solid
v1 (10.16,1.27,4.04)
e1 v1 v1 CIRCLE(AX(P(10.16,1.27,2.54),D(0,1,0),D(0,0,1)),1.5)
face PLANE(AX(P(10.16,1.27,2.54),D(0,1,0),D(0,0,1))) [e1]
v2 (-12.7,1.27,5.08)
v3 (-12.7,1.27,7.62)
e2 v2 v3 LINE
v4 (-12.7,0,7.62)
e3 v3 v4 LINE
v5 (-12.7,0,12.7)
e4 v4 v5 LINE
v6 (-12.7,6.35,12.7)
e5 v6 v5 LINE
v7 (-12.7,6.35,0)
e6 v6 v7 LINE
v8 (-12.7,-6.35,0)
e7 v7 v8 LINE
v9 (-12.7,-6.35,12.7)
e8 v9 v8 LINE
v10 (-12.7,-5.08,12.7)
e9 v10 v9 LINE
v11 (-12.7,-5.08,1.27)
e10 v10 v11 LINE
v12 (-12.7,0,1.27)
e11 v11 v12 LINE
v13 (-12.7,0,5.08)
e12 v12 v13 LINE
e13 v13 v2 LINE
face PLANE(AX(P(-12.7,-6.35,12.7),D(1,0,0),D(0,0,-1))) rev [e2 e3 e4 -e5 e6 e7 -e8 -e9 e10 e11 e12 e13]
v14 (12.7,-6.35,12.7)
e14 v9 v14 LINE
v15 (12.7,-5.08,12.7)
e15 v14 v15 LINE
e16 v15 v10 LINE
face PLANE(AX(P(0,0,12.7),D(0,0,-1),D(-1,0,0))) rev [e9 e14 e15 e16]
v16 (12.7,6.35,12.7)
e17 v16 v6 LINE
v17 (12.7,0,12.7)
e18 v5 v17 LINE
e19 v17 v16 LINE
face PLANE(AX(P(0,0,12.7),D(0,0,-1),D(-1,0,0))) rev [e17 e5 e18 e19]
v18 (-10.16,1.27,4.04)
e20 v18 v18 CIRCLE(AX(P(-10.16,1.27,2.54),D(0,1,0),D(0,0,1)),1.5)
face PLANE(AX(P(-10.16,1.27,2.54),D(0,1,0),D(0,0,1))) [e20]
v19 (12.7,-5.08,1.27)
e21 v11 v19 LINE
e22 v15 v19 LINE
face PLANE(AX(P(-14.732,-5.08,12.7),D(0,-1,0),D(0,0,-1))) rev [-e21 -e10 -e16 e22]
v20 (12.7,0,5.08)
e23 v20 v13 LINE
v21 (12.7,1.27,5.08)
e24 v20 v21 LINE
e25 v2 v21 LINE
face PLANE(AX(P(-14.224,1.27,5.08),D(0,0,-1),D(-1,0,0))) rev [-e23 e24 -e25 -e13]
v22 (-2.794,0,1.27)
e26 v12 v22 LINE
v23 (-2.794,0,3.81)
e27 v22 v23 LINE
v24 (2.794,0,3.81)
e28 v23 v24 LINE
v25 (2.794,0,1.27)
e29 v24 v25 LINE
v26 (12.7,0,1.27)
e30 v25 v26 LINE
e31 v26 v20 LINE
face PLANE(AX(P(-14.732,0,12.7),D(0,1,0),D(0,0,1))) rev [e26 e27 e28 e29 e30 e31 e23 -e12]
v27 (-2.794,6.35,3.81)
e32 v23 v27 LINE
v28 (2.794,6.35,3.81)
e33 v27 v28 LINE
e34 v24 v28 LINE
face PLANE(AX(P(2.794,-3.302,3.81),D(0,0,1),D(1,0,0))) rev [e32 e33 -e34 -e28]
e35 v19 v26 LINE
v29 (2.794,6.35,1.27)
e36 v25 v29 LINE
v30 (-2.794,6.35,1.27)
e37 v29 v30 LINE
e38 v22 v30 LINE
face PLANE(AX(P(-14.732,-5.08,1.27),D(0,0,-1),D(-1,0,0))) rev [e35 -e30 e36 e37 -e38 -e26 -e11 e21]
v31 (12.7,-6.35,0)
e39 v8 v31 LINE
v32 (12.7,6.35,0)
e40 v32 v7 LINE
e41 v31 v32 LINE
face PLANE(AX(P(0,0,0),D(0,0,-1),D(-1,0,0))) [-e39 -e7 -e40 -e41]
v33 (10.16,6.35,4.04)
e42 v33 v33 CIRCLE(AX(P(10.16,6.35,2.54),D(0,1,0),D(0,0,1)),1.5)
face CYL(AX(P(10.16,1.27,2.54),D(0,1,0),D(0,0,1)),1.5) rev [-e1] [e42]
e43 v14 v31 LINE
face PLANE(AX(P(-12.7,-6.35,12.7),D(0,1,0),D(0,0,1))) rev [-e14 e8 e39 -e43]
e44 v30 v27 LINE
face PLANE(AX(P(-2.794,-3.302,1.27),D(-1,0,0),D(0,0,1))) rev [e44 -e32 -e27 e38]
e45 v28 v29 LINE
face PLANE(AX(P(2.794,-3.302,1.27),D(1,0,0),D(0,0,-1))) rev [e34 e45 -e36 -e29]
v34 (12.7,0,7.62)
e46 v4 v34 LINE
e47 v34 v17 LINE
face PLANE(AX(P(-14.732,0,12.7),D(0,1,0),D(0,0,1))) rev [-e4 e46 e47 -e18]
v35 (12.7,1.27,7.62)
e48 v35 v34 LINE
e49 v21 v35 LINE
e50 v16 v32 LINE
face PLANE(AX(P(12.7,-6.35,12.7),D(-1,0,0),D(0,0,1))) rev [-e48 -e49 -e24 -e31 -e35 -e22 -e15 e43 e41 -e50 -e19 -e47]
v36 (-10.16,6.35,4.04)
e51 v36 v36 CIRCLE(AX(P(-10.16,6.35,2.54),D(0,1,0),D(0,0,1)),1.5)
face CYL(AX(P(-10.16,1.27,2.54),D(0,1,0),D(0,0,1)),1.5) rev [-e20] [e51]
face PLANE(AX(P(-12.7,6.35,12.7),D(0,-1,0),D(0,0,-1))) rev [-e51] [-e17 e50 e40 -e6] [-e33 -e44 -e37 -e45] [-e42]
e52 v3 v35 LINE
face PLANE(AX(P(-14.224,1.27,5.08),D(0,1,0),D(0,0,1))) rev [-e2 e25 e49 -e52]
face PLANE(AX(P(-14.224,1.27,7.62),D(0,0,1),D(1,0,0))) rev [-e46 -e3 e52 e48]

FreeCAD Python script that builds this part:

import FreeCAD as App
import Part
import Sketcher
from FreeCAD import Vector
Q = App.Units.Quantity


def add_polygon(sketch, points):
    """Adds a closed chain of lines whose ends are joined by coincident constraints."""
    first, n = sketch.GeometryCount, len(points)
    for a, b in zip(points, points[1:] + points[:1]):
        sketch.addGeometry(Part.LineSegment(App.Vector(*a, 0), App.Vector(*b, 0)), False)
    for i in range(n):
        sketch.addConstraint(Sketcher.Constraint("Coincident", first + i, 2, first + (i + 1) % n, 1))

doc = App.newDocument("Part")
body = doc.addObject("PartDesign::Body", "Body")

# Sketch on XY plane
sketch1 = body.newObject("Sketcher::SketchObject", "Sketch")
sketch1.AttachmentSupport = (doc.getObject("XY_Plane"), [""])
sketch1.MapMode = "FlatFace"
add_polygon(sketch1, [(-12.7, 6.35), (-12.7, -6.35), (12.7, -6.35), (12.7, 6.35)])  # lines 0-3
sketch1.addConstraint(Sketcher.Constraint("Vertical", 0))
sketch1.addConstraint(Sketcher.Constraint("Horizontal", 1))
sketch1.addConstraint(Sketcher.Constraint("Vertical", 2))
sketch1.addConstraint(Sketcher.Constraint("Horizontal", 3))
sketch1.addConstraint(Sketcher.Constraint("Symmetric", 0, 2, 2, 2, -1, 1))
sketch1.addConstraint(Sketcher.Constraint("DistanceX", 1, 1, 1, 2, Q("1 in")))
sketch1.addConstraint(Sketcher.Constraint("DistanceY", 0, 2, 0, 1, Q("0.5 in")))
pad1 = body.newObject("PartDesign::Pad", "Pad")
pad1.Profile = sketch1
pad1.Length = Q("0.5 in")

# Sketch on XZ plane
sketch2 = body.newObject("Sketcher::SketchObject", "Sketch001")
sketch2.AttachmentSupport = (doc.getObject("XZ_Plane"), [""])
sketch2.MapMode = "FlatFace"
sketch2.AttachmentOffset = App.Placement(Vector(0, 0, -0.25 * 25.4), App.Rotation())
sketch2.addGeometry(Part.Circle(Vector(-10.16, 2.54, 0), Vector(0, 0, 1), 1.5), False)
sketch2.addGeometry(Part.Circle(Vector(10.16, 2.54, 0), Vector(0, 0, 1), 1.5), False)
sketch2.addConstraint(Sketcher.Constraint("Equal", 0, 1))
sketch2.addConstraint(Sketcher.Constraint("Symmetric", 0, 3, 1, 3, -2))
sketch2.addConstraint(Sketcher.Constraint("DistanceX", 0, 3, -1, 1, Q("0.4 in")))
sketch2.addConstraint(Sketcher.Constraint("DistanceY", -1, 1, 0, 3, Q("0.1 in")))
sketch2.addConstraint(Sketcher.Constraint("Diameter", 0, 3.0))
pocket1 = body.newObject("PartDesign::Pocket", "Pocket")
pocket1.Profile = sketch2
pocket1.Length = Q("0.2 in")
pocket1.Reversed = True

# Sketch on YZ plane
sketch3 = body.newObject("Sketcher::SketchObject", "Sketch002")
sketch3.AttachmentSupport = (doc.getObject("YZ_Plane"), [""])
sketch3.MapMode = "FlatFace"
sketch3.AttachmentOffset = App.Placement(Vector(0, 0, 0.5 * 25.4), App.Rotation())
add_polygon(sketch3, [(0, 12.7), (-5.08, 12.7), (-5.08, 1.27), (0, 1.27)])  # lines 0-3
sketch3.addConstraint(Sketcher.Constraint("Horizontal", 0))
sketch3.addConstraint(Sketcher.Constraint("Vertical", 1))
sketch3.addConstraint(Sketcher.Constraint("Horizontal", 2))
sketch3.addConstraint(Sketcher.Constraint("Vertical", 3))
sketch3.addConstraint(Sketcher.Constraint("PointOnObject", 2, 2, -2))
sketch3.addConstraint(Sketcher.Constraint("DistanceX", 0, 2, 0, 1, Q("0.2 in")))
sketch3.addConstraint(Sketcher.Constraint("DistanceY", 1, 2, 1, 1, Q("0.45 in")))
sketch3.addConstraint(Sketcher.Constraint("DistanceY", -1, 1, 0, 2, Q("0.5 in")))
pocket2 = body.newObject("PartDesign::Pocket", "Pocket001")
pocket2.Profile = sketch3
pocket2.Length = Q("1.08 in")

# Sketch on XZ plane
sketch4 = body.newObject("Sketcher::SketchObject", "Sketch003")
sketch4.AttachmentSupport = (doc.getObject("XZ_Plane"), [""])
sketch4.MapMode = "FlatFace"
sketch4.AttachmentOffset = App.Placement(Vector(0, 0, -0.25 * 25.4), App.Rotation())
add_polygon(sketch4, [(-2.794, 1.27), (-2.794, 3.81), (2.794, 3.81), (2.794, 1.27)])  # lines 0-3
sketch4.addConstraint(Sketcher.Constraint("Vertical", 0))
sketch4.addConstraint(Sketcher.Constraint("Horizontal", 1))
sketch4.addConstraint(Sketcher.Constraint("Vertical", 2))
sketch4.addConstraint(Sketcher.Constraint("Horizontal", 3))
sketch4.addConstraint(Sketcher.Constraint("DistanceY", 0, 1, 0, 2, Q("0.1 in")))
sketch4.addConstraint(Sketcher.Constraint("DistanceX", 1, 1, 1, 2, Q("0.22 in")))
sketch4.addConstraint(Sketcher.Constraint("DistanceX", 0, 2, -1, 1, Q("0.11 in")))
sketch4.addConstraint(Sketcher.Constraint("DistanceY", -1, 1, 0, 2, Q("0.15 in")))
pocket3 = body.newObject("PartDesign::Pocket", "Pocket002")
pocket3.Profile = sketch4
pocket3.Length = Q("0.38 in")
pocket3.Reversed = True

# Sketch on YZ plane
sketch5 = body.newObject("Sketcher::SketchObject", "Sketch004")
sketch5.AttachmentSupport = (doc.getObject("YZ_Plane"), [""])
sketch5.MapMode = "FlatFace"
sketch5.AttachmentOffset = App.Placement(Vector(0, 0, 0.5 * 25.4), App.Rotation())
add_polygon(sketch5, [(1.27, 7.62), (0, 7.62), (0, 5.08), (1.27, 5.08)])  # lines 0-3
sketch5.addConstraint(Sketcher.Constraint("Horizontal", 0))
sketch5.addConstraint(Sketcher.Constraint("Vertical", 1))
sketch5.addConstraint(Sketcher.Constraint("Horizontal", 2))
sketch5.addConstraint(Sketcher.Constraint("Vertical", 3))
sketch5.addConstraint(Sketcher.Constraint("PointOnObject", 0, 2, -2))
sketch5.addConstraint(Sketcher.Constraint("DistanceY", 1, 2, 1, 1, Q("0.1 in")))
sketch5.addConstraint(Sketcher.Constraint("DistanceX", 0, 2, 0, 1, Q("0.05 in")))
sketch5.addConstraint(Sketcher.Constraint("DistanceY", -1, 1, 0, 2, Q("0.3 in")))
pocket4 = body.newObject("PartDesign::Pocket", "Pocket003")
pocket4.Profile = sketch5
pocket4.Length = Q("1.06 in")

doc.recompute()
